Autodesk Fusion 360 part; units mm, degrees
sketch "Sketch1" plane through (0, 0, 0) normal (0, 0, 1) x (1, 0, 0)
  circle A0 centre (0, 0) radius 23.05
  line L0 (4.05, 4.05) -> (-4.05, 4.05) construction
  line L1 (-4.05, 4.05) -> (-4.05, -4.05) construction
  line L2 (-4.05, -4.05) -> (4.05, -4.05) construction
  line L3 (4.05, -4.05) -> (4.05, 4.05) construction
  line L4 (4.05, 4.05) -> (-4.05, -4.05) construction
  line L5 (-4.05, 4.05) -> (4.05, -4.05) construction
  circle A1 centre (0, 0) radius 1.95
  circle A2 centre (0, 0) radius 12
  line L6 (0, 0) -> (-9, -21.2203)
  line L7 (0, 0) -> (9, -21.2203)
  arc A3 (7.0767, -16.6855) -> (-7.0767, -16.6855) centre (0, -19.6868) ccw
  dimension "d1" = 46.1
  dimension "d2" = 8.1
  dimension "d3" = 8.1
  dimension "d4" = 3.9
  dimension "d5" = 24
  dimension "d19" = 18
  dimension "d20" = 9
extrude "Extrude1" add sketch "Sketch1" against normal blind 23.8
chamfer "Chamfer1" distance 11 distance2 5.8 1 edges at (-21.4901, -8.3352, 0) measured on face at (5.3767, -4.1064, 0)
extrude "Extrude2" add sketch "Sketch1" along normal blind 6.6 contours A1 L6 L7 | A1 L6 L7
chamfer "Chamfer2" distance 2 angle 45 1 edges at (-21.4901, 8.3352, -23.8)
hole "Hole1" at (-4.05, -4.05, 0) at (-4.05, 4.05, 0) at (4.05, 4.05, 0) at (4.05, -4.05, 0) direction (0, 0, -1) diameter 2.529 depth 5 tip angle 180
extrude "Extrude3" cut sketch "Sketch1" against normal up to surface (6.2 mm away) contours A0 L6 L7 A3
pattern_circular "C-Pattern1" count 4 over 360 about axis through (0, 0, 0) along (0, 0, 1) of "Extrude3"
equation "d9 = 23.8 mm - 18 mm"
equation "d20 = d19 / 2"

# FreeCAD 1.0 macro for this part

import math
import FreeCAD as App
import Part
import Sketcher
from FreeCAD import Vector
Q = App.Units.Quantity


def edges_at(feature, points):
    """Names of the edges that pass closest to the given points."""
    edges = feature.Shape.Edges
    near = lambda p: min(range(len(edges)), key=lambda i: edges[i].distToShape(Part.Vertex(*p))[0])
    return sorted({f"Edge{near(p) + 1}" for p in points})

doc = App.newDocument("Part")
body = doc.addObject("PartDesign::Body", "Body")

# Sketch on XY plane
sketch1 = doc.addObject("Sketcher::SketchObject", "Sketch")
body.addObject(sketch1)
sketch1.AttachmentSupport = (doc.XY_Plane, [""])
sketch1.MapMode = "FlatFace"
sketch1.addGeometry(Part.Circle(Vector(0, 0, 0), Vector(0, 0, 1), 23), False)
sketch1.addConstraint([
    Sketcher.Constraint("Coincident", 0, 3, -1, 1),
    Sketcher.Constraint("Diameter", 0, Q("46.1 mm")),
])
pad1 = doc.addObject("PartDesign::Pad", "Pad")
body.addObject(pad1)
pad1.Profile = sketch1
pad1.Length = 23.8
pad1.Reversed = True
doc.recompute()

chamfer = doc.addObject("PartDesign::Chamfer", "Chamfer")
body.addObject(chamfer)
chamfer.Base = (pad1, edges_at(pad1, [(-21.49, -8.335, 0)]))
chamfer.ChamferType = "Two distances"
chamfer.Size = 11
chamfer.Size2 = 5.8
chamfer.FlipDirection = True

# Sketch on XY plane
sketch2 = doc.addObject("Sketcher::SketchObject", "Sketch001")
body.addObject(sketch2)
sketch2.AttachmentSupport = (doc.XY_Plane, [""])
sketch2.MapMode = "FlatFace"
sketch2.addGeometry(Part.Circle(Vector(0, 0, 0), Vector(0, 0, 1), 1.9), False)
sketch2.addConstraint([
    Sketcher.Constraint("Coincident", 0, 3, -1, 1),
    Sketcher.Constraint("Diameter", 0, Q("3.9 mm")),
])
pad2 = doc.addObject("PartDesign::Pad", "Pad001")
body.addObject(pad2)
pad2.Profile = sketch2
pad2.Length = 6.6
doc.recompute()

chamfer2 = doc.addObject("PartDesign::Chamfer", "Chamfer001")
body.addObject(chamfer2)
chamfer2.Base = (pad2, edges_at(pad2, [(-21.49, 8.335, -23.8)]))
chamfer2.Size = 2

# Sketch on XY plane
sketch3 = doc.addObject("Sketcher::SketchObject", "Sketch002")
body.addObject(sketch3)
sketch3.AttachmentSupport = (doc.XY_Plane, [""])
sketch3.MapMode = "FlatFace"
sketch3.addGeometry([
    Part.Circle(Vector(-4, -4, 0), Vector(0, 0, 1), 1.3),
    Part.Circle(Vector(-4, 4, 0), Vector(0, 0, 1), 1.3),
    Part.Circle(Vector(4, 4, 0), Vector(0, 0, 1), 1.3),
    Part.Circle(Vector(4, -4, 0), Vector(0, 0, 1), 1.3),
], False)
sketch3.addConstraint([
    Sketcher.Constraint("Equal", 0, 1),
    Sketcher.Constraint("Equal", 1, 2),
    Sketcher.Constraint("Equal", 2, 3),
    Sketcher.Constraint("Symmetric", 0, 3, 2, 3, -1, 1),
    Sketcher.Constraint("Symmetric", 1, 3, 3, 3, -1, 1),
    Sketcher.Constraint("Symmetric", 1, 3, 2, 3, -2),
    Sketcher.Constraint("Diameter", 0, Q("2.529 mm")),
    Sketcher.Constraint("DistanceY", 0, 3, 1, 3, Q("8.1 mm")),
    Sketcher.Constraint("DistanceX", 1, 3, 2, 3, Q("8.1 mm")),
])
doc.recompute()
hole = doc.addObject("PartDesign::Hole", "Hole")
body.addObject(hole)
hole.Profile = sketch3
hole.ThreadType = "None"
hole.Diameter = 2.529
hole.DepthType = "Dimension"
hole.Depth = 5
hole.DrillPoint = "Flat"

# Sketch on XY plane
sketch4 = doc.addObject("Sketcher::SketchObject", "Sketch003")
body.addObject(sketch4)
sketch4.AttachmentSupport = (doc.XY_Plane, [""])
sketch4.MapMode = "FlatFace"
sketch4.addGeometry([
    Part.LineSegment(Vector(-7.1, -16.7, 0), Vector(-9, -21.2, 0)),
    Part.ArcOfCircle(Part.Circle(Vector(0, 0, 0), Vector(0, 0, 1), 23.1), math.radians(-113), math.radians(-67)),
    Part.LineSegment(Vector(9, -21.2, 0), Vector(7.1, -16.7, 0)),
    Part.ArcOfCircle(Part.Circle(Vector(0, -19.7, 0), Vector(0, 0, 1), 7.7), math.radians(23), math.radians(157)),
], False)
sketch4.addConstraint([
    Sketcher.Constraint("Coincident", 0, 2, 1, 1),
    Sketcher.Constraint("Coincident", 1, 2, 2, 1),
    Sketcher.Constraint("Tangent", 2, 2, 3, 1),
    Sketcher.Constraint("Tangent", 3, 2, 0, 1),
    Sketcher.Constraint("Coincident", 1, 3, -1, 1),
    Sketcher.Constraint("Symmetric", 2, 2, 3, 2, -2),
    Sketcher.Constraint("Radius", 1, Q("23.05 mm")),
    Sketcher.Constraint("DistanceX", 0, 2, -1, 1, Q("9 mm")),
    Sketcher.Constraint("Radius", 3, Q("7.6868 mm")),
    Sketcher.Constraint("Distance", 0, Q("4.9258 mm")),
])
pocket1 = doc.addObject("PartDesign::Pocket", "Pocket")
body.addObject(pocket1)
pocket1.Profile = sketch4
pocket1.Length = 6.2
doc.recompute()

polarpattern = doc.addObject("PartDesign::PolarPattern", "PolarPattern")
body.addObject(polarpattern)
polarpattern.Originals = [pocket1]
polarpattern.Axis = (doc.Z_Axis, [""])
polarpattern.Angle = 360
polarpattern.Occurrences = 4
body.Tip = polarpattern

doc.recompute()
